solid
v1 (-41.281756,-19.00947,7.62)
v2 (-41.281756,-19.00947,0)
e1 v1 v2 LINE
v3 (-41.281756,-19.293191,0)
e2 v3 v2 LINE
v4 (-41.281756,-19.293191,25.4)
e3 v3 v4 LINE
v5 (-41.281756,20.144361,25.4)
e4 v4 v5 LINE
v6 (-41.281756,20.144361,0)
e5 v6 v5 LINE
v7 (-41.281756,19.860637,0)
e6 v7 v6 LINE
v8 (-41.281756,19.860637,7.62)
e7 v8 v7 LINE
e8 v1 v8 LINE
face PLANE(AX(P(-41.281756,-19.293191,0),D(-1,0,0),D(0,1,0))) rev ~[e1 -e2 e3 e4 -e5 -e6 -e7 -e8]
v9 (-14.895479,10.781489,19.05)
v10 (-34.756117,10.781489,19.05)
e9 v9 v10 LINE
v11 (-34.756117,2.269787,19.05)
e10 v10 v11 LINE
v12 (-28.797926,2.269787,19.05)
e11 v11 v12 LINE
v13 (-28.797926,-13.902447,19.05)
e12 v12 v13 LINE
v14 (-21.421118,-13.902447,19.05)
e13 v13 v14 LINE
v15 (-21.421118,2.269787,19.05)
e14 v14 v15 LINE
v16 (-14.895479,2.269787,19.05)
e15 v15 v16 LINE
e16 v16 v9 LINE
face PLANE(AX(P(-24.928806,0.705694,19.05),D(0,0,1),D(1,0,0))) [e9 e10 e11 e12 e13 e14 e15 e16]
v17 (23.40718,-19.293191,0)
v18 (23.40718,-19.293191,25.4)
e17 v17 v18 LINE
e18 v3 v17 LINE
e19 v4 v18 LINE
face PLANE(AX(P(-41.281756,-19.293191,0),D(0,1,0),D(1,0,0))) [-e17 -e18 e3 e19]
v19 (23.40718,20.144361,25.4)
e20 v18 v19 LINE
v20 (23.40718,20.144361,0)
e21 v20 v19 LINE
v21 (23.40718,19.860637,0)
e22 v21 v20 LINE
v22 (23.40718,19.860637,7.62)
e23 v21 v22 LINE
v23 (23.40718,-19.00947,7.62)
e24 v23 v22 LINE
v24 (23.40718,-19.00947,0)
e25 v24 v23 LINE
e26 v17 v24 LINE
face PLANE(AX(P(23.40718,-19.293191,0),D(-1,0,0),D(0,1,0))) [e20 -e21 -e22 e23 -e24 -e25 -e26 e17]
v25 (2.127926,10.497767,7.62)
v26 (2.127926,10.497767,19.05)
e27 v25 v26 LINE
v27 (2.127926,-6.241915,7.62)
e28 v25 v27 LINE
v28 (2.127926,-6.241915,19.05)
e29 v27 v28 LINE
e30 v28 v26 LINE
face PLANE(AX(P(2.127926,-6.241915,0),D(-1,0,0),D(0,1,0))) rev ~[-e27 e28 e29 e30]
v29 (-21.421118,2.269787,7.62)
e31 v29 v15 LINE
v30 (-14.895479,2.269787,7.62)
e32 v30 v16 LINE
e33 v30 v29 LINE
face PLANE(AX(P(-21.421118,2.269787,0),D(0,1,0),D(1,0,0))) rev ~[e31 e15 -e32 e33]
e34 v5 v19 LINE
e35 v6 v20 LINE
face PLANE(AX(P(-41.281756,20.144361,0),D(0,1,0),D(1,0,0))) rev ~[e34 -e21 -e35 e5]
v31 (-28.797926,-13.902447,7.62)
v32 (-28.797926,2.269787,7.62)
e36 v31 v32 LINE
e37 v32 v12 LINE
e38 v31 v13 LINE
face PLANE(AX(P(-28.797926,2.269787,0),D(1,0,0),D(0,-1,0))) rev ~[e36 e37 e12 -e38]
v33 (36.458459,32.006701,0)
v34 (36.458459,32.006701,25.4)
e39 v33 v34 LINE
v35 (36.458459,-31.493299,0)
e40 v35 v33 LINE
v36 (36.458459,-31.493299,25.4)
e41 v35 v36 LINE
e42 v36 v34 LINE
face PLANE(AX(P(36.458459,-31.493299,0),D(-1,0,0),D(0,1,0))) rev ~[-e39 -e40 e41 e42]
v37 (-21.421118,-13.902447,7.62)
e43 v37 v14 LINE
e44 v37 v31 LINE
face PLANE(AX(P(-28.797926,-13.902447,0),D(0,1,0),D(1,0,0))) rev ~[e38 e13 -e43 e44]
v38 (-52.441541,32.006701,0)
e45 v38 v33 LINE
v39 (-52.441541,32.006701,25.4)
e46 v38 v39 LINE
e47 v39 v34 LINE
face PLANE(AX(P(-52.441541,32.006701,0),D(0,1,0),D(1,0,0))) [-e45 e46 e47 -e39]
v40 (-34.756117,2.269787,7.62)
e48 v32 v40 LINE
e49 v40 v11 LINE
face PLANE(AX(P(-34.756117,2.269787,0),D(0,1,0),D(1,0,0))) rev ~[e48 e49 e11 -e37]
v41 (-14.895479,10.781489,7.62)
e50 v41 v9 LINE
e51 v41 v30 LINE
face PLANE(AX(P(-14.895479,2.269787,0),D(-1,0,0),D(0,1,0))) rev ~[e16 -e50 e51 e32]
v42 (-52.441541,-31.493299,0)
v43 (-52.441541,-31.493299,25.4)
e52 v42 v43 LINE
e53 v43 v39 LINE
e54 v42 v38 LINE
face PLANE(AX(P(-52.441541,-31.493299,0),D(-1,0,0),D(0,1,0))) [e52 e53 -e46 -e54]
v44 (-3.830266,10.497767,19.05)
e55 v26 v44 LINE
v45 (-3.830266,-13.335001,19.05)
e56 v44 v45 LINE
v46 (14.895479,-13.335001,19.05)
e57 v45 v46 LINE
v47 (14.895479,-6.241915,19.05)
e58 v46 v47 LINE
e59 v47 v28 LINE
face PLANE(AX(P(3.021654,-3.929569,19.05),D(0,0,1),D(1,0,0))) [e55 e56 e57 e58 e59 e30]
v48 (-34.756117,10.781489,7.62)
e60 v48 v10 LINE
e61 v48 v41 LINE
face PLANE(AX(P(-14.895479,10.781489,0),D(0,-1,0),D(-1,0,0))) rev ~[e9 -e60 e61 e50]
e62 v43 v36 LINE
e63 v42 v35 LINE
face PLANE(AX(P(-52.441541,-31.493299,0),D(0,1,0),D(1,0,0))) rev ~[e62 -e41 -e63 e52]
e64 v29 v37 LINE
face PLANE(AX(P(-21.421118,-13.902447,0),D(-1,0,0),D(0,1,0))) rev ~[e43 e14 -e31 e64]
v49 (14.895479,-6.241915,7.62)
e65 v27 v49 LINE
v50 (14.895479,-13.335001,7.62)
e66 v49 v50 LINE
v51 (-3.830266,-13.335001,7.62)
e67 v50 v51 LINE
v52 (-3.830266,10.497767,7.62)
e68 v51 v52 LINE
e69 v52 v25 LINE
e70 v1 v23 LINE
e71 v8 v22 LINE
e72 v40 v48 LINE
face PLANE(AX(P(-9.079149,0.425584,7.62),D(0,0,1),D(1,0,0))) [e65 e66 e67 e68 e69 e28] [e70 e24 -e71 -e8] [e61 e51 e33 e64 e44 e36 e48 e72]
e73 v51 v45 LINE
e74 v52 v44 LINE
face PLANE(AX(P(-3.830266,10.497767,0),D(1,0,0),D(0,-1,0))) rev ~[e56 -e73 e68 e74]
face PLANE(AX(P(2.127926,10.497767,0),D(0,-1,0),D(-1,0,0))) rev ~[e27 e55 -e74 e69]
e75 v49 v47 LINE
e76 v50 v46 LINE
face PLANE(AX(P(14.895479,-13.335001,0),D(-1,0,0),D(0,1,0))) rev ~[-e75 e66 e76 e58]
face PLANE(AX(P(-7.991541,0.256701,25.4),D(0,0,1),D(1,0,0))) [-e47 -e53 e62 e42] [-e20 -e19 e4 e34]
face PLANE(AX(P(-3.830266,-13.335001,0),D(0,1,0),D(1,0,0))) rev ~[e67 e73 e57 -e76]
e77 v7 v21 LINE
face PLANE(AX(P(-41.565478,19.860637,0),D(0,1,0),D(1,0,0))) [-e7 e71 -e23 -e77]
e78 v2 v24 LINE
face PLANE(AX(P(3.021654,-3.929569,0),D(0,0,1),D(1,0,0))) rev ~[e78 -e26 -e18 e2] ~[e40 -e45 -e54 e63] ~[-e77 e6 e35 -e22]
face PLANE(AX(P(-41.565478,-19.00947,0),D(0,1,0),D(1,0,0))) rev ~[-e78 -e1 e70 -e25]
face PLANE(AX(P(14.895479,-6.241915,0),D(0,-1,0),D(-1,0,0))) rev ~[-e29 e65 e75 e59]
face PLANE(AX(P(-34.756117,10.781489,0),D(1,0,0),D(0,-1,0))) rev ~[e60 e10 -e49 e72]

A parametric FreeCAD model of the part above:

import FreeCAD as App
import Part
import Sketcher
from FreeCAD import Vector
Q = App.Units.Quantity

doc = App.newDocument("Part")
params = doc.addObject("Spreadsheet::Sheet", "Params")
for row, (alias, value) in enumerate([
    ("sketch1_width", "3.5 in"),
    ("sketch1_height", "2.5 in"),
    ("pad1_length", "1 in"),
    ("pad2_length", "0.3 in"),
    ("pad3_length", "0.75 in"),
    ("pad4_length", "0.75 in"),
], start=1):
    params.set(f"A{row}", alias)
    params.set(f"B{row}", "=" + value)
    params.setAlias(f"B{row}", alias)

body = doc.addObject("PartDesign::Body", "Body")

# Sketch on XY plane
sketch1 = body.newObject("Sketcher::SketchObject", "Sketch")
sketch1.AttachmentSupport = (doc.getObject("XY_Plane"), [""])
sketch1.MapMode = "FlatFace"
sketch1.addGeometry(Part.LineSegment(Vector(-52, 32, 0), Vector(-52, -31, 0)), False)
sketch1.addGeometry(Part.LineSegment(Vector(-52, -31, 0), Vector(36, -31, 0)), False)
sketch1.addGeometry(Part.LineSegment(Vector(36, -31, 0), Vector(36, 32, 0)), False)
sketch1.addGeometry(Part.LineSegment(Vector(36, 32, 0), Vector(-52, 32, 0)), False)
sketch1.addGeometry(Part.LineSegment(Vector(23, -19, 0), Vector(-41, -19, 0)), False)
sketch1.addGeometry(Part.LineSegment(Vector(-41, -19, 0), Vector(-41, 20, 0)), False)
sketch1.addGeometry(Part.LineSegment(Vector(-41, 20, 0), Vector(23, 20, 0)), False)
sketch1.addGeometry(Part.LineSegment(Vector(23, 20, 0), Vector(23, -19, 0)), False)
sketch1.addConstraint(Sketcher.Constraint("Coincident", 0, 2, 1, 1))
sketch1.addConstraint(Sketcher.Constraint("Coincident", 1, 2, 2, 1))
sketch1.addConstraint(Sketcher.Constraint("Coincident", 2, 2, 3, 1))
sketch1.addConstraint(Sketcher.Constraint("Coincident", 3, 2, 0, 1))
sketch1.addConstraint(Sketcher.Constraint("Coincident", 4, 2, 5, 1))
sketch1.addConstraint(Sketcher.Constraint("Coincident", 5, 2, 6, 1))
sketch1.addConstraint(Sketcher.Constraint("Coincident", 6, 2, 7, 1))
sketch1.addConstraint(Sketcher.Constraint("Coincident", 7, 2, 4, 1))
sketch1.addConstraint(Sketcher.Constraint("Vertical", 0))
sketch1.addConstraint(Sketcher.Constraint("Horizontal", 1))
sketch1.addConstraint(Sketcher.Constraint("Vertical", 2))
sketch1.addConstraint(Sketcher.Constraint("Horizontal", 3))
sketch1.addConstraint(Sketcher.Constraint("Horizontal", 4))
sketch1.addConstraint(Sketcher.Constraint("Vertical", 5))
sketch1.addConstraint(Sketcher.Constraint("Horizontal", 6))
sketch1.addConstraint(Sketcher.Constraint("Vertical", 7))
sketch1.addConstraint(Sketcher.Constraint("DistanceX", 1, 1, 1, 2, Q("3.5 in")))
sketch1.addConstraint(Sketcher.Constraint("DistanceY", 0, 2, 0, 1, Q("2.5 in")))
sketch1.addConstraint(Sketcher.Constraint("DistanceY", 0, 2, -1, 1, 31.493299))
sketch1.addConstraint(Sketcher.Constraint("DistanceX", 4, 2, 4, 1, 64.688936))
sketch1.addConstraint(Sketcher.Constraint("DistanceY", 5, 1, 5, 2, 39.437553))
sketch1.addConstraint(Sketcher.Constraint("DistanceX", 0, 2, -1, 1, 52.441541))
sketch1.addConstraint(Sketcher.Constraint("DistanceY", 4, 2, -1, 1, 19.293191))
sketch1.addConstraint(Sketcher.Constraint("DistanceX", -1, 1, 6, 2, 23.40718))
sketch1.setExpression("Constraints[16]", "Params.sketch1_width")
sketch1.setExpression("Constraints[17]", "Params.sketch1_height")
pad1 = body.newObject("PartDesign::Pad", "Pad")
pad1.Profile = sketch1
pad1.setExpression("Length", "Params.pad1_length")

# Sketch on XY plane
sketch2 = body.newObject("Sketcher::SketchObject", "Sketch001")
sketch2.AttachmentSupport = (doc.getObject("XY_Plane"), [""])
sketch2.MapMode = "FlatFace"
sketch2.addGeometry(Part.LineSegment(Vector(-42, 20, 0), Vector(-42, -19, 0)), False)
sketch2.addGeometry(Part.LineSegment(Vector(-42, -19, 0), Vector(23, -19, 0)), False)
sketch2.addGeometry(Part.LineSegment(Vector(23, -19, 0), Vector(23, 20, 0)), False)
sketch2.addGeometry(Part.LineSegment(Vector(23, 20, 0), Vector(-42, 20, 0)), False)
sketch2.addConstraint(Sketcher.Constraint("Coincident", 0, 2, 1, 1))
sketch2.addConstraint(Sketcher.Constraint("Coincident", 1, 2, 2, 1))
sketch2.addConstraint(Sketcher.Constraint("Coincident", 2, 2, 3, 1))
sketch2.addConstraint(Sketcher.Constraint("Coincident", 3, 2, 0, 1))
sketch2.addConstraint(Sketcher.Constraint("Vertical", 0))
sketch2.addConstraint(Sketcher.Constraint("Horizontal", 1))
sketch2.addConstraint(Sketcher.Constraint("Vertical", 2))
sketch2.addConstraint(Sketcher.Constraint("Horizontal", 3))
sketch2.addConstraint(Sketcher.Constraint("DistanceX", 1, 1, 1, 2, 64.972658))
sketch2.addConstraint(Sketcher.Constraint("DistanceY", 0, 2, 0, 1, 38.870107))
sketch2.addConstraint(Sketcher.Constraint("DistanceY", 0, 2, -1, 1, 19.00947))
sketch2.addConstraint(Sketcher.Constraint("DistanceX", -1, 1, 1, 2, 23.40718))
pad2 = body.newObject("PartDesign::Pad", "Pad001")
pad2.Profile = sketch2
pad2.setExpression("Length", "Params.pad2_length")

# Sketch on XY plane
sketch3 = body.newObject("Sketcher::SketchObject", "Sketch002")
sketch3.AttachmentSupport = (doc.getObject("XY_Plane"), [""])
sketch3.MapMode = "FlatFace"
sketch3.addGeometry(Part.LineSegment(Vector(-15, 11, 0), Vector(-35, 11, 0)), False)
sketch3.addGeometry(Part.LineSegment(Vector(-35, 11, 0), Vector(-35, 2, 0)), False)
sketch3.addGeometry(Part.LineSegment(Vector(-35, 2, 0), Vector(-29, 2, 0)), False)
sketch3.addGeometry(Part.LineSegment(Vector(-29, 2, 0), Vector(-29, -14, 0)), False)
sketch3.addGeometry(Part.LineSegment(Vector(-29, -14, 0), Vector(-21, -14, 0)), False)
sketch3.addGeometry(Part.LineSegment(Vector(-21, -14, 0), Vector(-21, 2, 0)), False)
sketch3.addGeometry(Part.LineSegment(Vector(-21, 2, 0), Vector(-15, 2, 0)), False)
sketch3.addGeometry(Part.LineSegment(Vector(-15, 2, 0), Vector(-15, 11, 0)), False)
sketch3.addConstraint(Sketcher.Constraint("Coincident", 0, 2, 1, 1))
sketch3.addConstraint(Sketcher.Constraint("Coincident", 1, 2, 2, 1))
sketch3.addConstraint(Sketcher.Constraint("Coincident", 2, 2, 3, 1))
sketch3.addConstraint(Sketcher.Constraint("Coincident", 3, 2, 4, 1))
sketch3.addConstraint(Sketcher.Constraint("Coincident", 4, 2, 5, 1))
sketch3.addConstraint(Sketcher.Constraint("Coincident", 5, 2, 6, 1))
sketch3.addConstraint(Sketcher.Constraint("Coincident", 6, 2, 7, 1))
sketch3.addConstraint(Sketcher.Constraint("Coincident", 7, 2, 0, 1))
sketch3.addConstraint(Sketcher.Constraint("Horizontal", 0))
sketch3.addConstraint(Sketcher.Constraint("Vertical", 1))
sketch3.addConstraint(Sketcher.Constraint("Horizontal", 2))
sketch3.addConstraint(Sketcher.Constraint("Vertical", 3))
sketch3.addConstraint(Sketcher.Constraint("Horizontal", 4))
sketch3.addConstraint(Sketcher.Constraint("Vertical", 5))
sketch3.addConstraint(Sketcher.Constraint("Horizontal", 6))
sketch3.addConstraint(Sketcher.Constraint("Vertical", 7))
sketch3.addConstraint(Sketcher.Constraint("Horizontal", 2, 2, 5, 2))
sketch3.addConstraint(Sketcher.Constraint("DistanceX", 1, 2, 4, 2, Q("0.525 in")))
sketch3.addConstraint(Sketcher.Constraint("DistanceX", 0, 2, 0, 1, 19.860638))
sketch3.addConstraint(Sketcher.Constraint("DistanceX", 2, 1, 2, 2, 5.958191))
sketch3.addConstraint(Sketcher.Constraint("DistanceY", 1, 2, 1, 1, 8.511702))
sketch3.addConstraint(Sketcher.Constraint("DistanceY", 3, 2, 3, 1, 16.172234))
sketch3.addConstraint(Sketcher.Constraint("DistanceY", -1, 1, 0, 2, 10.781489))
sketch3.addConstraint(Sketcher.Constraint("DistanceX", 4, 2, -1, 1, 21.421118))
pad3 = body.newObject("PartDesign::Pad", "Pad002")
pad3.Profile = sketch3
pad3.setExpression("Length", "Params.pad3_length")

# Sketch on XY plane
sketch4 = body.newObject("Sketcher::SketchObject", "Sketch003")
sketch4.AttachmentSupport = (doc.getObject("XY_Plane"), [""])
sketch4.MapMode = "FlatFace"
sketch4.addGeometry(Part.LineSegment(Vector(2, 10, 0), Vector(-4, 10, 0)), False)
sketch4.addGeometry(Part.LineSegment(Vector(-4, 10, 0), Vector(-4, -13, 0)), False)
sketch4.addGeometry(Part.LineSegment(Vector(-4, -13, 0), Vector(15, -13, 0)), False)
sketch4.addGeometry(Part.LineSegment(Vector(15, -13, 0), Vector(15, -6, 0)), False)
sketch4.addGeometry(Part.LineSegment(Vector(15, -6, 0), Vector(2, -6, 0)), False)
sketch4.addGeometry(Part.LineSegment(Vector(2, -6, 0), Vector(2, 10, 0)), False)
sketch4.addConstraint(Sketcher.Constraint("Coincident", 0, 2, 1, 1))
sketch4.addConstraint(Sketcher.Constraint("Coincident", 1, 2, 2, 1))
sketch4.addConstraint(Sketcher.Constraint("Coincident", 2, 2, 3, 1))
sketch4.addConstraint(Sketcher.Constraint("Coincident", 3, 2, 4, 1))
sketch4.addConstraint(Sketcher.Constraint("Coincident", 4, 2, 5, 1))
sketch4.addConstraint(Sketcher.Constraint("Coincident", 5, 2, 0, 1))
sketch4.addConstraint(Sketcher.Constraint("Horizontal", 0))
sketch4.addConstraint(Sketcher.Constraint("Vertical", 1))
sketch4.addConstraint(Sketcher.Constraint("Horizontal", 2))
sketch4.addConstraint(Sketcher.Constraint("Vertical", 3))
sketch4.addConstraint(Sketcher.Constraint("Horizontal", 4))
sketch4.addConstraint(Sketcher.Constraint("Vertical", 5))
sketch4.addConstraint(Sketcher.Constraint("DistanceY", 1, 2, -1, 1, Q("0.525 in")))
sketch4.addConstraint(Sketcher.Constraint("DistanceY", 1, 2, 1, 1, 23.832768))
sketch4.addConstraint(Sketcher.Constraint("DistanceY", 5, 1, 5, 2, 16.739682))
sketch4.addConstraint(Sketcher.Constraint("DistanceX", 0, 2, 0, 1, 5.958192))
sketch4.addConstraint(Sketcher.Constraint("DistanceX", 2, 1, 2, 2, 18.725745))
sketch4.addConstraint(Sketcher.Constraint("DistanceX", -1, 1, 2, 2, 14.895479))
pad4 = body.newObject("PartDesign::Pad", "Pad003")
pad4.Profile = sketch4
pad4.setExpression("Length", "Params.pad4_length")

doc.recompute()
